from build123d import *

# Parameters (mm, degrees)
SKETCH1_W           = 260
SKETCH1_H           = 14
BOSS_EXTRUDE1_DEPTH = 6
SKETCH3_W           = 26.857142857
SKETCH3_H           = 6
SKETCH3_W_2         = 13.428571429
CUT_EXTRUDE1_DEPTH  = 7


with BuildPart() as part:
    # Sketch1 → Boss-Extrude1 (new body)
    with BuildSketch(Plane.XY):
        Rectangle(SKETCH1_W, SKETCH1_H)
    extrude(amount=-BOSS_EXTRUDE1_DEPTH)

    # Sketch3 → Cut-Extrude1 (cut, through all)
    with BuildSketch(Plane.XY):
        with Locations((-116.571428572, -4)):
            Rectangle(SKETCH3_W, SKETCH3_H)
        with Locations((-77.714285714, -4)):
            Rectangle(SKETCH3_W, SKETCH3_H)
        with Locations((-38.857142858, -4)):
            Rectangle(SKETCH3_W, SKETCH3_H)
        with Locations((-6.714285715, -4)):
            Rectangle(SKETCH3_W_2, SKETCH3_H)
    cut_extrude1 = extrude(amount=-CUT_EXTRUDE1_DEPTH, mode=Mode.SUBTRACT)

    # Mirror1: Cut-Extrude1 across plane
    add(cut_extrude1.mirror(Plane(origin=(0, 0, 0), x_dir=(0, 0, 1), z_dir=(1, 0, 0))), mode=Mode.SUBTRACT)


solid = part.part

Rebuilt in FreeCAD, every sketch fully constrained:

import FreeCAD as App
import Part
import Sketcher

V = App.Vector
Q = App.Units.Quantity

doc = App.newDocument("Part")
body = doc.addObject("PartDesign::Body", "Body")

# Sketch on XY plane
sketch1 = doc.addObject("Sketcher::SketchObject", "Sketch")
body.addObject(sketch1)
sketch1.AttachmentSupport = (doc.XY_Plane, [""])
sketch1.MapMode = "FlatFace"
sketch1.addGeometry([
    Part.LineSegment(V(-130, 7, 0), V(-130, -7, 0)),
    Part.LineSegment(V(-130, -7, 0), V(130, -7, 0)),
    Part.LineSegment(V(130, -7, 0), V(130, 7, 0)),
    Part.LineSegment(V(130, 7, 0), V(-130, 7, 0)),
], False)
sketch1.addConstraint([
    Sketcher.Constraint("Coincident", 0, 2, 1, 1),
    Sketcher.Constraint("Coincident", 1, 2, 2, 1),
    Sketcher.Constraint("Coincident", 2, 2, 3, 1),
    Sketcher.Constraint("Coincident", 3, 2, 0, 1),
    Sketcher.Constraint("Vertical", 0),
    Sketcher.Constraint("Horizontal", 1),
    Sketcher.Constraint("Vertical", 2),
    Sketcher.Constraint("Horizontal", 3),
    Sketcher.Constraint("Symmetric", 0, 2, 2, 2, -1, 1),
    Sketcher.Constraint("DistanceX", 1, 1, 1, 2, Q("260 mm")),
    Sketcher.Constraint("DistanceY", 0, 2, 0, 1, Q("14 mm")),
])
pad1 = doc.addObject("PartDesign::Pad", "Pad")
body.addObject(pad1)
pad1.Profile = sketch1
pad1.Length = 6
pad1.Reversed = True

# Sketch on XY plane
sketch2 = doc.addObject("Sketcher::SketchObject", "Sketch001")
body.addObject(sketch2)
sketch2.AttachmentSupport = (doc.XY_Plane, [""])
sketch2.MapMode = "FlatFace"
sketch2.addGeometry([
    Part.LineSegment(V(-130, -1, 0), V(-130, -7, 0)),  # 0
    Part.LineSegment(V(-130, -7, 0), V(-103, -7, 0)),  # 1
    Part.LineSegment(V(-103, -7, 0), V(-103, -1, 0)),  # 2
    Part.LineSegment(V(-103, -1, 0), V(-130, -1, 0)),  # 3
    Part.LineSegment(V(-91, -1, 0), V(-91, -7, 0)),  # 4
    Part.LineSegment(V(-91, -7, 0), V(-64, -7, 0)),  # 5
    Part.LineSegment(V(-64, -7, 0), V(-64, -1, 0)),  # 6
    Part.LineSegment(V(-64, -1, 0), V(-91, -1, 0)),  # 7
    Part.LineSegment(V(-52, -1, 0), V(-52, -7, 0)),  # 8
    Part.LineSegment(V(-52, -7, 0), V(-25, -7, 0)),  # 9
    Part.LineSegment(V(-25, -7, 0), V(-25, -1, 0)),  # 10
    Part.LineSegment(V(-25, -1, 0), V(-52, -1, 0)),  # 11
    Part.LineSegment(V(-13, -1, 0), V(-13, -7, 0)),  # 12
    Part.LineSegment(V(-13, -7, 0), V(0, -7, 0)),  # 13
    Part.LineSegment(V(0, -7, 0), V(0, -1, 0)),  # 14
    Part.LineSegment(V(0, -1, 0), V(-13, -1, 0)),  # 15
], False)
sketch2.addConstraint([
    Sketcher.Constraint("Coincident", 0, 2, 1, 1),
    Sketcher.Constraint("Coincident", 1, 2, 2, 1),
    Sketcher.Constraint("Coincident", 2, 2, 3, 1),
    Sketcher.Constraint("Coincident", 3, 2, 0, 1),
    Sketcher.Constraint("Coincident", 4, 2, 5, 1),
    Sketcher.Constraint("Coincident", 5, 2, 6, 1),
    Sketcher.Constraint("Coincident", 6, 2, 7, 1),
    Sketcher.Constraint("Coincident", 7, 2, 4, 1),
    Sketcher.Constraint("Coincident", 8, 2, 9, 1),
    Sketcher.Constraint("Coincident", 9, 2, 10, 1),
    Sketcher.Constraint("Coincident", 10, 2, 11, 1),
    Sketcher.Constraint("Coincident", 11, 2, 8, 1),
    Sketcher.Constraint("Coincident", 12, 2, 13, 1),
    Sketcher.Constraint("Coincident", 13, 2, 14, 1),
    Sketcher.Constraint("Coincident", 14, 2, 15, 1),
    Sketcher.Constraint("Coincident", 15, 2, 12, 1),
    Sketcher.Constraint("Vertical", 0),
    Sketcher.Constraint("Horizontal", 1),
    Sketcher.Constraint("Vertical", 2),
    Sketcher.Constraint("Horizontal", 3),
    Sketcher.Constraint("Vertical", 4),
    Sketcher.Constraint("Horizontal", 5),
    Sketcher.Constraint("Vertical", 6),
    Sketcher.Constraint("Horizontal", 7),
    Sketcher.Constraint("Vertical", 8),
    Sketcher.Constraint("Horizontal", 9),
    Sketcher.Constraint("Vertical", 10),
    Sketcher.Constraint("Horizontal", 11),
    Sketcher.Constraint("Vertical", 12),
    Sketcher.Constraint("Horizontal", 13),
    Sketcher.Constraint("Vertical", 14),
    Sketcher.Constraint("Horizontal", 15),
    Sketcher.Constraint("PointOnObject", 13, 2, -2),
    Sketcher.Constraint("Horizontal", 1, 2, 4, 2),
    Sketcher.Constraint("Horizontal", 3, 2, 6, 2),
    Sketcher.Constraint("Horizontal", 5, 2, 8, 2),
    Sketcher.Constraint("Horizontal", 7, 2, 10, 2),
    Sketcher.Constraint("Horizontal", 9, 2, 12, 2),
    Sketcher.Constraint("Horizontal", 11, 2, 14, 2),
    Sketcher.Constraint("Equal", 3, 5),
    Sketcher.Constraint("Equal", 7, 9),
    Sketcher.Constraint("DistanceY", 0, 2, 0, 1, Q("6 mm")),
    Sketcher.Constraint("DistanceX", 0, 2, -1, 1, Q("130 mm")),
    Sketcher.Constraint("DistanceY", 0, 2, -1, 1, Q("7 mm")),
    Sketcher.Constraint("DistanceX", 1, 2, 4, 2, Q("12 mm")),
    Sketcher.Constraint("DistanceX", 5, 2, 8, 2, Q("12 mm")),
    Sketcher.Constraint("DistanceX", 9, 2, 12, 2, Q("12 mm")),
    Sketcher.Constraint("DistanceX", 13, 1, 13, 2, Q("13.428571 mm")),
])
pocket1 = doc.addObject("PartDesign::Pocket", "Pocket")
body.addObject(pocket1)
pocket1.Profile = sketch2
pocket1.Type = "ThroughAll"
doc.recompute()

mirrored = doc.addObject("PartDesign::Mirrored", "Mirrored")
body.addObject(mirrored)
mirrored.Originals = [pocket1]
mirrored.MirrorPlane = (doc.YZ_Plane, [""])
body.Tip = mirrored

doc.recompute()
